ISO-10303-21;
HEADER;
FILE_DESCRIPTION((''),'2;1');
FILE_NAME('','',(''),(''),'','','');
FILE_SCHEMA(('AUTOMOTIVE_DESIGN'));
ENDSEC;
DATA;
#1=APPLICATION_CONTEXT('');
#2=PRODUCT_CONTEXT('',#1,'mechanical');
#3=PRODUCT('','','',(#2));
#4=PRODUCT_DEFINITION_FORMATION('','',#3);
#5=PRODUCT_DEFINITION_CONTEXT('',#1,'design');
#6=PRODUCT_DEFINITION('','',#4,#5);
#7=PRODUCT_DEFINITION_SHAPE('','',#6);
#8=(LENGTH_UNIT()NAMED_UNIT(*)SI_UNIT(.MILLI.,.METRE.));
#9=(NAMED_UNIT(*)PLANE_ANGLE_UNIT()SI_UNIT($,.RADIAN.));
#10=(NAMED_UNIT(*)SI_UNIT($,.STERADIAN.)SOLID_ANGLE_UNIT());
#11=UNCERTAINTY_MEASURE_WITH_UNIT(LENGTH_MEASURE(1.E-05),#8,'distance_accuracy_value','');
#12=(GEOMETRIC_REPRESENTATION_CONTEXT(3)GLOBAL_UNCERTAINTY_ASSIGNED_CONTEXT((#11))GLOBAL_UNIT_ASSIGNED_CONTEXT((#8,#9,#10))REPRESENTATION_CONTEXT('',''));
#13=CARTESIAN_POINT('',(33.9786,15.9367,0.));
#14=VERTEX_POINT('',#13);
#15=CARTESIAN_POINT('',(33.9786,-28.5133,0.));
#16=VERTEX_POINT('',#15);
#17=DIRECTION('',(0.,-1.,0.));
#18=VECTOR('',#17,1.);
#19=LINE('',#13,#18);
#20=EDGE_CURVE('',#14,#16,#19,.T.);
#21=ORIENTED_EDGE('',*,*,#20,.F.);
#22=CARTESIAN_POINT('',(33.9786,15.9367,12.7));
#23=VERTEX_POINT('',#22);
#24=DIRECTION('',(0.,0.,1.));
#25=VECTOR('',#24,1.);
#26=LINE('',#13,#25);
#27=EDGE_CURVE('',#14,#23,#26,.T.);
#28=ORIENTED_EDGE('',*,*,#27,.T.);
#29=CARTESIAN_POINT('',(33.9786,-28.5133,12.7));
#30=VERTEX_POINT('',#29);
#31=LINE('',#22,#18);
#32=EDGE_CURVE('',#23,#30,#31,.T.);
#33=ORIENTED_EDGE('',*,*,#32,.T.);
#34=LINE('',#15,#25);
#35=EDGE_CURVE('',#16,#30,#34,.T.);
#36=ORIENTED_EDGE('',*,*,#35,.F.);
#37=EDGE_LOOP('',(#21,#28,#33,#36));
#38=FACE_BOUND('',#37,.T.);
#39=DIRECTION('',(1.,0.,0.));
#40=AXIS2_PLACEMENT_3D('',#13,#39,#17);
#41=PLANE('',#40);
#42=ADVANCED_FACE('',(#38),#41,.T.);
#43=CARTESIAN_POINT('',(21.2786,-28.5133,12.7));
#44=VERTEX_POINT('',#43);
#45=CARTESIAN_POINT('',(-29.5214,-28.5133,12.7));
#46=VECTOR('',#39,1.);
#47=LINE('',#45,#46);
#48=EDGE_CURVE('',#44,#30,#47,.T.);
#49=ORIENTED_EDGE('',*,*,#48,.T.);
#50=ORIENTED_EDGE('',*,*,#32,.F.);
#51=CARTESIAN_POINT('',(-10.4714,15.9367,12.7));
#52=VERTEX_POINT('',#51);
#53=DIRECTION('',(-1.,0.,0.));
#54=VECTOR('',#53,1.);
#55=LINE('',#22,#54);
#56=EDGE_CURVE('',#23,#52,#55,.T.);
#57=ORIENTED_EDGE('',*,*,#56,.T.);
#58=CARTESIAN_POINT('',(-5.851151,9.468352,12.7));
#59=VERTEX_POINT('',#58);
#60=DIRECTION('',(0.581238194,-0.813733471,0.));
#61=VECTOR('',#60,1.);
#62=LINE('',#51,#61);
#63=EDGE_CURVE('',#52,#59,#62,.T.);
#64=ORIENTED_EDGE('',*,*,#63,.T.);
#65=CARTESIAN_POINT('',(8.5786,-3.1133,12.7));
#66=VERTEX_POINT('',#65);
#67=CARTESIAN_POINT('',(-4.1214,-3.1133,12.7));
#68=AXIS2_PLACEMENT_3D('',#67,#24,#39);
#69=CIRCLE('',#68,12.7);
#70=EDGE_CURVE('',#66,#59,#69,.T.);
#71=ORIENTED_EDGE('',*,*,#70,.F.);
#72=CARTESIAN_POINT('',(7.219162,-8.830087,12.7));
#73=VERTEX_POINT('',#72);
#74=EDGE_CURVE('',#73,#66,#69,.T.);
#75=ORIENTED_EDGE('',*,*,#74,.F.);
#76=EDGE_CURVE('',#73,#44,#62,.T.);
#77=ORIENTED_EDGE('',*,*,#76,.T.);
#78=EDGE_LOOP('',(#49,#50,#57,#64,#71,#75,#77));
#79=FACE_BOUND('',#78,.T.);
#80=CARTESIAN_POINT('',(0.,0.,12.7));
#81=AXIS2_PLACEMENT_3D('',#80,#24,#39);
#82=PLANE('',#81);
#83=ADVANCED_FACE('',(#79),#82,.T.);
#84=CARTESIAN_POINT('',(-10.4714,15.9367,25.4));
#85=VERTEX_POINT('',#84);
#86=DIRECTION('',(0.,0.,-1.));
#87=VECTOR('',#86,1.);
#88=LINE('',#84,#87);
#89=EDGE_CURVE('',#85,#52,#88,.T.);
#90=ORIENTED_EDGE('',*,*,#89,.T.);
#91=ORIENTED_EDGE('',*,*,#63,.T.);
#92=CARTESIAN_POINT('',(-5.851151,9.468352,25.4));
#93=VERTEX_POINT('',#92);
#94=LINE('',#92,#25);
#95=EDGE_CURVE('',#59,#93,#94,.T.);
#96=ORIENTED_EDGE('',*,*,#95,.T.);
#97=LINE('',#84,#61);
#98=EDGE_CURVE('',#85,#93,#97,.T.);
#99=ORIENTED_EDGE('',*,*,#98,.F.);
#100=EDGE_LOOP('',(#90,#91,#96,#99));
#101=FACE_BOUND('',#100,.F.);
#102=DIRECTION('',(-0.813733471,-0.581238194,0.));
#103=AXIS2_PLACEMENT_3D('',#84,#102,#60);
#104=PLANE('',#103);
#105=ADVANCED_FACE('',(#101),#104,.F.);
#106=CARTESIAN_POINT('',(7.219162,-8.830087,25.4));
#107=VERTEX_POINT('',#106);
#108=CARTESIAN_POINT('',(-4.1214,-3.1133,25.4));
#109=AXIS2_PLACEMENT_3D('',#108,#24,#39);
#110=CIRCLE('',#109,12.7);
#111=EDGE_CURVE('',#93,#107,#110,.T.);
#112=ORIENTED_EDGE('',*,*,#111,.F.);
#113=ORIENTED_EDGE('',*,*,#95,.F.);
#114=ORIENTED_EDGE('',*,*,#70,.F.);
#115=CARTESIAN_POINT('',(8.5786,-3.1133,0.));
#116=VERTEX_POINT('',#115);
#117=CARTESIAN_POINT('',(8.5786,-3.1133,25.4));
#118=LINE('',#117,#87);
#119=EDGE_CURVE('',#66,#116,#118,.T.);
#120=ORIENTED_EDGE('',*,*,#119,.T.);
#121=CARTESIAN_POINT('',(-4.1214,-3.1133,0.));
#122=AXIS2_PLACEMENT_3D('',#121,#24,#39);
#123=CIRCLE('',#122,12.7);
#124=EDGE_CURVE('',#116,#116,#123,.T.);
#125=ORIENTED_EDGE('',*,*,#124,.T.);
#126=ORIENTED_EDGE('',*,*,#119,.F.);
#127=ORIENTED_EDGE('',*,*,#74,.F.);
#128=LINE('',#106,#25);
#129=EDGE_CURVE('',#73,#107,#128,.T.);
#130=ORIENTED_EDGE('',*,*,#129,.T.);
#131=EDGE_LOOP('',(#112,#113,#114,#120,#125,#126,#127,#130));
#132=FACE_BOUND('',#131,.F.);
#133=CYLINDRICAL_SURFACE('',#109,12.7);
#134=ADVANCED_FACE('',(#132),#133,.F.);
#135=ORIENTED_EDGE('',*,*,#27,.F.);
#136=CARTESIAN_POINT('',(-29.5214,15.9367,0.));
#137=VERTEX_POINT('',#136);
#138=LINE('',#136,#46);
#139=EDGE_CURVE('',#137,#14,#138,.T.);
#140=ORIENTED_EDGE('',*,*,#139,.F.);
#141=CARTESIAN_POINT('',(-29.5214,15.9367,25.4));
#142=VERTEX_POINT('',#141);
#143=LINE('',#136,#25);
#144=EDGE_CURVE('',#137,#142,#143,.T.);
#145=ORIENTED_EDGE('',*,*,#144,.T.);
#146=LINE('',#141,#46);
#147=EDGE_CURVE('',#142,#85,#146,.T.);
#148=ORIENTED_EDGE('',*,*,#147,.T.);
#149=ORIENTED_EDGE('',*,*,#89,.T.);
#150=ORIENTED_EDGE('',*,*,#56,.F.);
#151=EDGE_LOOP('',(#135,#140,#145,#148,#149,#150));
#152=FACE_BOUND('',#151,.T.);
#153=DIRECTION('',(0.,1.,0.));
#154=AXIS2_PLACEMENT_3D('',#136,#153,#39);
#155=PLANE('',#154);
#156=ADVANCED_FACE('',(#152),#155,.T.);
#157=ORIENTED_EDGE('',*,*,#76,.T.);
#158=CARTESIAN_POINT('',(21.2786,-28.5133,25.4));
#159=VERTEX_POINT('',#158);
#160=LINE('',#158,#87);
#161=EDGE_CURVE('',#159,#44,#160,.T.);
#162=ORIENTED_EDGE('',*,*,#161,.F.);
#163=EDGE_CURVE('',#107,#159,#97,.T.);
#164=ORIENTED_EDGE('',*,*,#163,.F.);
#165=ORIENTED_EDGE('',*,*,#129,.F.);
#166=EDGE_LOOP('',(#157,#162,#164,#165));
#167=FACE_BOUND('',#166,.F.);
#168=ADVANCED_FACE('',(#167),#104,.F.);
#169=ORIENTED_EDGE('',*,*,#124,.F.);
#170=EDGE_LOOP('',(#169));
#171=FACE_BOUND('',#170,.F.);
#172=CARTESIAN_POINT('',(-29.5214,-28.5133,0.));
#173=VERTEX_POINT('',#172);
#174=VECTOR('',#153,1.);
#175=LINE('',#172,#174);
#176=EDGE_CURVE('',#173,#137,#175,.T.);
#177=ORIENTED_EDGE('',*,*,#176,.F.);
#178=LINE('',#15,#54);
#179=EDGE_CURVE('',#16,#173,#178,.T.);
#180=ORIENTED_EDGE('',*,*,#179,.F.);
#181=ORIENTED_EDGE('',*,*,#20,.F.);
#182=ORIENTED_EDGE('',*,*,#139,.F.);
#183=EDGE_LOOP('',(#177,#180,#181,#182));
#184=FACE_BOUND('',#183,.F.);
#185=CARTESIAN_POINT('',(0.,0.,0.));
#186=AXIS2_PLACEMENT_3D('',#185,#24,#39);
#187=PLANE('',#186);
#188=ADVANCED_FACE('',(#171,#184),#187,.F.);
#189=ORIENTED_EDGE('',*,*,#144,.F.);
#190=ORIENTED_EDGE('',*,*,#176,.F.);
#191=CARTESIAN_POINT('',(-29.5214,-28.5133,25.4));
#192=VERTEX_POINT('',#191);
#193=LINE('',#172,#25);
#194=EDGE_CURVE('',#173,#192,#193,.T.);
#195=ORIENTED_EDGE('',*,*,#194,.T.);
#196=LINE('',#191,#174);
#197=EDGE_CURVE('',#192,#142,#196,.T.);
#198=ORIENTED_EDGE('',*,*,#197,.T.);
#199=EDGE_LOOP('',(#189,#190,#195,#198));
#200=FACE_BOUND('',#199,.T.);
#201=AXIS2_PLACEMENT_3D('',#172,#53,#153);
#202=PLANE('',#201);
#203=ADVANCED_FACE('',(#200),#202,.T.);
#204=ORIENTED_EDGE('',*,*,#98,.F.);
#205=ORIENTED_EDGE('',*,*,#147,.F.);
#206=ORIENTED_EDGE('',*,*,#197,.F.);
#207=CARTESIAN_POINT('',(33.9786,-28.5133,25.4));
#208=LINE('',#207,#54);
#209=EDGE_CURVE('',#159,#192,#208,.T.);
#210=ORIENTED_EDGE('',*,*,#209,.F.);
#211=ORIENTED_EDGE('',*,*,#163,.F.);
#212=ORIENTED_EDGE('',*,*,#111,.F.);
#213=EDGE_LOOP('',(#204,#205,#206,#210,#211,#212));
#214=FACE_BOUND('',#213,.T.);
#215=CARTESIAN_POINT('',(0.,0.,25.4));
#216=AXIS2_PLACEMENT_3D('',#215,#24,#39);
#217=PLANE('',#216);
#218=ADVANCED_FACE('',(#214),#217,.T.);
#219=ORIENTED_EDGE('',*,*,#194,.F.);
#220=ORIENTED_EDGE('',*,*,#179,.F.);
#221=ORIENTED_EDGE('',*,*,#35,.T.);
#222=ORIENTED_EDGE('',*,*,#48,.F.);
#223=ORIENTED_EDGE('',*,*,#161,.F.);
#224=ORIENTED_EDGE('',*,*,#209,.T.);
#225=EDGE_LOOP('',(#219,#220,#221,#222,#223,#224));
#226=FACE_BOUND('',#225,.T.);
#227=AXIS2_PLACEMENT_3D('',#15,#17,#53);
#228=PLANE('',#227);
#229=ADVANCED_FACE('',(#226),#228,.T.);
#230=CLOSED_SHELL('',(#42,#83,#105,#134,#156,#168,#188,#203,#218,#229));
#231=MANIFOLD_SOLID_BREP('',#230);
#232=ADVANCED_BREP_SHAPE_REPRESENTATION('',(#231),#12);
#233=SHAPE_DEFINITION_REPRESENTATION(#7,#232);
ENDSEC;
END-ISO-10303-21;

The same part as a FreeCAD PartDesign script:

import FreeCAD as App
import Part
import Sketcher
Q = App.Units.Quantity


def add_polygon(sketch, points):
    """Adds a closed chain of lines whose ends are joined by coincident constraints."""
    first, n = sketch.GeometryCount, len(points)
    for a, b in zip(points, points[1:] + points[:1]):
        sketch.addGeometry(Part.LineSegment(App.Vector(*a, 0), App.Vector(*b, 0)), False)
    for i in range(n):
        sketch.addConstraint(Sketcher.Constraint("Coincident", first + i, 2, first + (i + 1) % n, 1))

doc = App.newDocument("Part")
body = doc.addObject("PartDesign::Body", "Body")

sketch1 = body.newObject("Sketcher::SketchObject", "Sketch")
sketch1.AttachmentSupport = (doc.getObject("XY_Plane"), [""])
sketch1.MapMode = "FlatFace"
add_polygon(sketch1, [(33.9786, 15.9367), (-29.5214, 15.9367), (-29.5214, -28.5133), (33.9786, -28.5133)])
sketch1.addConstraint(Sketcher.Constraint("Horizontal", 0))
sketch1.addConstraint(Sketcher.Constraint("Vertical", 1))
sketch1.addConstraint(Sketcher.Constraint("Horizontal", 2))
sketch1.addConstraint(Sketcher.Constraint("Vertical", 3))
sketch1.addConstraint(Sketcher.Constraint("DistanceX", 0, 2, 0, 1, Q("2.5 in")))
sketch1.addConstraint(Sketcher.Constraint("DistanceY", 1, 2, 1, 1, Q("1.75 in")))
sketch1.addConstraint(Sketcher.Constraint("DistanceX", 0, 2, -1, 1, 29.5214))
sketch1.addConstraint(Sketcher.Constraint("DistanceY", -1, 1, 0, 2, 15.9367))
pad1 = body.newObject("PartDesign::Pad", "Pad")
pad1.Profile = sketch1
pad1.Length = Q("1 in")

sketch2 = body.newObject("Sketcher::SketchObject", "Sketch001")
sketch2.AttachmentSupport = (doc.getObject("XY_Plane"), [""])
sketch2.MapMode = "FlatFace"
sketch2.AttachmentOffset = App.Placement(App.Vector(0, 0, 1 * 25.4), App.Rotation())
add_polygon(sketch2, [(33.9786, -28.5133), (33.9786, 15.9367), (-10.4714, 15.9367), (21.2786, -28.5133)])
sketch2.addConstraint(Sketcher.Constraint("Vertical", 0))
sketch2.addConstraint(Sketcher.Constraint("Horizontal", 1))
sketch2.addConstraint(Sketcher.Constraint("Horizontal", 3))
sketch2.addConstraint(Sketcher.Constraint("Equal", 1, 0))
sketch2.addConstraint(Sketcher.Constraint("DistanceX", 3, 1, 3, 2, Q("0.5 in")))
sketch2.addConstraint(Sketcher.Constraint("DistanceX", 1, 2, 1, 1, Q("1.75 in")))
sketch2.addConstraint(Sketcher.Constraint("DistanceX", -1, 1, 0, 2, 33.9786))
sketch2.addConstraint(Sketcher.Constraint("DistanceY", -1, 1, 0, 2, 15.9367))
pocket1 = body.newObject("PartDesign::Pocket", "Pocket")
pocket1.Profile = sketch2
pocket1.Length = Q("0.5 in")

sketch3 = body.newObject("Sketcher::SketchObject", "Sketch002")
sketch3.AttachmentSupport = (doc.getObject("XY_Plane"), [""])
sketch3.MapMode = "FlatFace"
sketch3.AttachmentOffset = App.Placement(App.Vector(0, 0, 1 * 25.4), App.Rotation())
sketch3.addGeometry(Part.Circle(App.Vector(-4.1214, -3.1133, 0), App.Vector(0, 0, 1), 12.7), False)
sketch3.addConstraint(Sketcher.Constraint("Diameter", 0, Q("1 in")))
sketch3.addConstraint(Sketcher.Constraint("DistanceX", 0, 3, -1, 1, 4.1214))
sketch3.addConstraint(Sketcher.Constraint("DistanceY", 0, 3, -1, 1, 3.1133))
pocket2 = body.newObject("PartDesign::Pocket", "Pocket001")
pocket2.Profile = sketch3
pocket2.Length = Q("1 in")

doc.recompute()
